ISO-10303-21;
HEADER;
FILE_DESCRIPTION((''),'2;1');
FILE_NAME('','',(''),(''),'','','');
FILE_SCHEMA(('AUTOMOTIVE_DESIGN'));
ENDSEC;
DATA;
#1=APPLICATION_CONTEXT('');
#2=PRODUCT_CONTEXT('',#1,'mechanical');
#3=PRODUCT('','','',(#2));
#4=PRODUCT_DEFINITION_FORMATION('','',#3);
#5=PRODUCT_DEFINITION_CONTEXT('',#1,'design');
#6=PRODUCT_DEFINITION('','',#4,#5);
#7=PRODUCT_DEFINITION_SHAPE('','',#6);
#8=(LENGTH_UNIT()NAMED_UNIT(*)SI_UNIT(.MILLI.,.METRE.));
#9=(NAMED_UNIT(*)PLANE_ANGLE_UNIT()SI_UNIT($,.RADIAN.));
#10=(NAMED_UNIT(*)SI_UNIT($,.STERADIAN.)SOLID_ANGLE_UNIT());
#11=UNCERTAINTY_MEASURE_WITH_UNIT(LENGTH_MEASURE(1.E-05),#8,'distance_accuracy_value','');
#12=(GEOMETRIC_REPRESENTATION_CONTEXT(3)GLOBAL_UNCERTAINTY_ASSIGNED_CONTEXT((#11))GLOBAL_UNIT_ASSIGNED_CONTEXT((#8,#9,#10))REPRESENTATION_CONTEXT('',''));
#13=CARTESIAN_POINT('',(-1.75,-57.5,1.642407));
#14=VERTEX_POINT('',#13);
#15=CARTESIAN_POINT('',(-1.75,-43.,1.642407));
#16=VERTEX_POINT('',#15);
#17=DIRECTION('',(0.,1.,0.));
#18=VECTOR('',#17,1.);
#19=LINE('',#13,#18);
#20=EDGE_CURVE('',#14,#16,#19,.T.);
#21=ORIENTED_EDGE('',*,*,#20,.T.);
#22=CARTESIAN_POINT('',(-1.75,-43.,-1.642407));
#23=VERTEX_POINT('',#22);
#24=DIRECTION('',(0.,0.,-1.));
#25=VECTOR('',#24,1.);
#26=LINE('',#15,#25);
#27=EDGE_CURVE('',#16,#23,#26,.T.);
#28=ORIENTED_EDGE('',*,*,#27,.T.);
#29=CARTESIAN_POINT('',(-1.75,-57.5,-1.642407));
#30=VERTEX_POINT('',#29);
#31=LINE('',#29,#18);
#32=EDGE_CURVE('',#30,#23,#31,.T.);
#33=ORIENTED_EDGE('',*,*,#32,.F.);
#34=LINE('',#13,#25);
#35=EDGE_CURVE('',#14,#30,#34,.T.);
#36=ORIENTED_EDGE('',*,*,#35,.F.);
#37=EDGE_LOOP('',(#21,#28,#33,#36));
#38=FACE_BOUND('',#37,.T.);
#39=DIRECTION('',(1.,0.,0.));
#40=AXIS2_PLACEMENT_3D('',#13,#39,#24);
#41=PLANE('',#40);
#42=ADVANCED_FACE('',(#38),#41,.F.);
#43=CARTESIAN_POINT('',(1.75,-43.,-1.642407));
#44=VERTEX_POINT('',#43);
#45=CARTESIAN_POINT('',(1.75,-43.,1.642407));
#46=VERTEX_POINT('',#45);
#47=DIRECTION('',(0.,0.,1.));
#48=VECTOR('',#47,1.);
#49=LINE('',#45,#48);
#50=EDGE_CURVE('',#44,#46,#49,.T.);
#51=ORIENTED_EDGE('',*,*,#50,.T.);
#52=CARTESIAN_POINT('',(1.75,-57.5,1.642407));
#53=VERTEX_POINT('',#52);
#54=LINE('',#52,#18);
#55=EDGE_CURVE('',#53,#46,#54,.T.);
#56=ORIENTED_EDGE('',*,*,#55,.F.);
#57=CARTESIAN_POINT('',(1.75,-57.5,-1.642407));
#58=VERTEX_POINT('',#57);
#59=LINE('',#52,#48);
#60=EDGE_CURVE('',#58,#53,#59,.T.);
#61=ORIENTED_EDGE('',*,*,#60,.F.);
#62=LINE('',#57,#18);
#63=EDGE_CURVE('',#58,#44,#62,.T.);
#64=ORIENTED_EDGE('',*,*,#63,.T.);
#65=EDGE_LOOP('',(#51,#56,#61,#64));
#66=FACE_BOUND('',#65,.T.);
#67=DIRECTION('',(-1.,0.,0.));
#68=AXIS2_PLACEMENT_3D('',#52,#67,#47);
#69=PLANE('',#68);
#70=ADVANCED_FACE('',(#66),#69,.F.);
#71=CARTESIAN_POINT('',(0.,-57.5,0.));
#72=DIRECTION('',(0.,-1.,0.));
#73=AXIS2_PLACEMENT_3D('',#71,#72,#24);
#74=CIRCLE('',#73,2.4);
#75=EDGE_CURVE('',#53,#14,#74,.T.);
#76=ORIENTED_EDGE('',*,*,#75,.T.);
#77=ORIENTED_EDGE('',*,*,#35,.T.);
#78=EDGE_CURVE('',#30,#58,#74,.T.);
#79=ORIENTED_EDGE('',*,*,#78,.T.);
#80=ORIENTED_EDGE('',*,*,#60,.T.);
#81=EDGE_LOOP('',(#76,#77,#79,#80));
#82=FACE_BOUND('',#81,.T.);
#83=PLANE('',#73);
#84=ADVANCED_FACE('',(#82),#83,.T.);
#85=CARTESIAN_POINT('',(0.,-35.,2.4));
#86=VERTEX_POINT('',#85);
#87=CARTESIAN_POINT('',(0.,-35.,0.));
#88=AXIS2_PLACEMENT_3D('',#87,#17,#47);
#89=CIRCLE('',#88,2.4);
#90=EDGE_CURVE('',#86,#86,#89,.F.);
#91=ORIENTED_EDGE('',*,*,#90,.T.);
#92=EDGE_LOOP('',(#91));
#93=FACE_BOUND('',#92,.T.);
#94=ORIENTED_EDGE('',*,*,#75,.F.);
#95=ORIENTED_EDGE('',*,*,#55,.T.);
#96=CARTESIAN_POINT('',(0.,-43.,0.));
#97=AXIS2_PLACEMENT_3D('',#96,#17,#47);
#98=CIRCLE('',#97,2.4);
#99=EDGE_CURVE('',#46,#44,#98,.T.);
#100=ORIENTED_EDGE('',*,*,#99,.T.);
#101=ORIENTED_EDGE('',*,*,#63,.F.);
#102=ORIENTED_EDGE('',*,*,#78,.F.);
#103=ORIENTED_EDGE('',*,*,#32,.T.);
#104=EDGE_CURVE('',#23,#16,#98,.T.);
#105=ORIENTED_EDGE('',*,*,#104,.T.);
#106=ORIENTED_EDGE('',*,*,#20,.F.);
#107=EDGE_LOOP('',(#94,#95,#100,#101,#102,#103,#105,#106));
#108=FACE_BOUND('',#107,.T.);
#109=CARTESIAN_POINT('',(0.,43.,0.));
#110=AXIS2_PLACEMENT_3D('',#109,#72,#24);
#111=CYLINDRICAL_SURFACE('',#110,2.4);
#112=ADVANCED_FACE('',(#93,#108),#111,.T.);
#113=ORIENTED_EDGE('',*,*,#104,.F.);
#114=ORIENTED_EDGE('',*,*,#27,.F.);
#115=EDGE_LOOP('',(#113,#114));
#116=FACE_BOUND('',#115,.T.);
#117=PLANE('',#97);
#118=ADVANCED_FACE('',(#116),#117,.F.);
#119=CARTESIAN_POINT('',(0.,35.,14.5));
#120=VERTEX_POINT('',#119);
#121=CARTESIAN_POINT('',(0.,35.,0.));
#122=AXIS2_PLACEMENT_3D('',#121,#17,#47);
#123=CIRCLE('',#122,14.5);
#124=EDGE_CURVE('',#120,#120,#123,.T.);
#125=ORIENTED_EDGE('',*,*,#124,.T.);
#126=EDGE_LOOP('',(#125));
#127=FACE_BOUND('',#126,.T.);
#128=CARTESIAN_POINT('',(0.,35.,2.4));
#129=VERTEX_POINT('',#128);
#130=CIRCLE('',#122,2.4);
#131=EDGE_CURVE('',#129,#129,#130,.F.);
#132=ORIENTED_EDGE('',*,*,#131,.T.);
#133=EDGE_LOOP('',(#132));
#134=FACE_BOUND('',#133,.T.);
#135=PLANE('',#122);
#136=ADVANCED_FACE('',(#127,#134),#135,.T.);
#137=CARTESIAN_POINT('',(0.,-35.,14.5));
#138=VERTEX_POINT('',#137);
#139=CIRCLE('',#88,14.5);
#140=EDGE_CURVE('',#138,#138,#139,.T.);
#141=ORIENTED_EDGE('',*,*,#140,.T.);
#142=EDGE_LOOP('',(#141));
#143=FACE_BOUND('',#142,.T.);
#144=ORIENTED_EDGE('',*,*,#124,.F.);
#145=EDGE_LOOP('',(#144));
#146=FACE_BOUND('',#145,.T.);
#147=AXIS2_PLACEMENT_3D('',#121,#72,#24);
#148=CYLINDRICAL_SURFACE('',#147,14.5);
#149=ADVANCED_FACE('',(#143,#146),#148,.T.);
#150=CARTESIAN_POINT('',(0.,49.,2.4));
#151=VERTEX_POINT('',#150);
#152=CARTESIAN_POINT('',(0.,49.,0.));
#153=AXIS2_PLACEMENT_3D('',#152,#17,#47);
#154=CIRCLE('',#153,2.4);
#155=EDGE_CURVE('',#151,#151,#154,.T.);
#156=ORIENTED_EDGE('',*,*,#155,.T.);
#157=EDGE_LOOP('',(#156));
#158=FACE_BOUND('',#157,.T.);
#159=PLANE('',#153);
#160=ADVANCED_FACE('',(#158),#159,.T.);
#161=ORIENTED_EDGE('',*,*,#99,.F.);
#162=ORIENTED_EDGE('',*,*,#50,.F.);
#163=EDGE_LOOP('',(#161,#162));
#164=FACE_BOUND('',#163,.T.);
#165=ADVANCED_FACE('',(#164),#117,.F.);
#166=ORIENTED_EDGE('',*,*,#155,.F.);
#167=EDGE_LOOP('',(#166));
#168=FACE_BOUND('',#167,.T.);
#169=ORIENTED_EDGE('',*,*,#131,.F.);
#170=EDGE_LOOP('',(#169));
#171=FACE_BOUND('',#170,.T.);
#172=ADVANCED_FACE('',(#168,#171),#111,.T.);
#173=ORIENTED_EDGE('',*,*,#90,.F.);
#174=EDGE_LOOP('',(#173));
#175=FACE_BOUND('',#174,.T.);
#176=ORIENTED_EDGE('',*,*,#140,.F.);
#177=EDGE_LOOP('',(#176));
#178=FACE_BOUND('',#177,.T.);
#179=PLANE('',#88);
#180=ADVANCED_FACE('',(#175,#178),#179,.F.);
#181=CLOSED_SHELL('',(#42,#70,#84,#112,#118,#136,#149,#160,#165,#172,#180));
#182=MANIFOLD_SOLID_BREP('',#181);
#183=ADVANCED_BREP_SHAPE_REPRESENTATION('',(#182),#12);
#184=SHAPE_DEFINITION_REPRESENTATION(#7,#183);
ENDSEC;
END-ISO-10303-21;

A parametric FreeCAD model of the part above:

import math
import FreeCAD as App
import Part
import Sketcher
Q = App.Units.Quantity

doc = App.newDocument("Part")
body = doc.addObject("PartDesign::Body", "Body")

sketch1 = body.newObject("Sketcher::SketchObject", "Sketch")
sketch1.AttachmentSupport = (doc.getObject("XZ_Plane"), [""])
sketch1.MapMode = "FlatFace"
sketch1.addGeometry(Part.Circle(App.Vector(0, 0, 0), App.Vector(0, 0, 1), 14.5), False)
sketch1.addConstraint([
    Sketcher.Constraint("Coincident", 0, 3, -1, 1),
    Sketcher.Constraint("Diameter", 0, Q("29 mm")),
])
pad1 = body.newObject("PartDesign::Pad", "Pad")
pad1.Profile = sketch1
pad1.Length = 70
pad1.Midplane = True

sketch2 = body.newObject("Sketcher::SketchObject", "Sketch001")
sketch2.AttachmentSupport = (doc.getObject("XZ_Plane"), [""])
sketch2.MapMode = "FlatFace"
sketch2.addGeometry(Part.Circle(App.Vector(0, 0, 0), App.Vector(0, 0, 1), 2.4), False)
sketch2.addConstraint([
    Sketcher.Constraint("Coincident", 0, 3, -1, 1),
    Sketcher.Constraint("Diameter", 0, Q("4.8 mm")),
])
pad2 = body.newObject("PartDesign::Pad", "Pad001")
pad2.Profile = sketch2
pad2.Length = 86
pad2.Midplane = True

sketch3 = body.newObject("Sketcher::SketchObject", "Sketch002")
sketch3.AttachmentSupport = (doc.getObject("XZ_Plane"), [""])
sketch3.MapMode = "FlatFace"
sketch3.AttachmentOffset = App.Placement(App.Vector(0, 0, 43), App.Rotation())
sketch3.addGeometry([
    Part.LineSegment(App.Vector(-1.75, 1.642407, 0), App.Vector(-1.75, -1.642407, 0)),
    Part.ArcOfCircle(Part.Circle(App.Vector(0, 0, 0), App.Vector(0, 0, 1), 2.4), math.radians(-136.816578), math.radians(-43.183422)),
    Part.LineSegment(App.Vector(1.75, -1.642407, 0), App.Vector(1.75, 1.642407, 0)),
    Part.ArcOfCircle(Part.Circle(App.Vector(0, 0, 0), App.Vector(0, 0, 1), 2.4), math.radians(43.183422), math.radians(136.816578)),
], False)
sketch3.addConstraint([
    Sketcher.Constraint("Coincident", 0, 2, 1, 1),
    Sketcher.Constraint("Coincident", 1, 2, 2, 1),
    Sketcher.Constraint("Coincident", 2, 2, 3, 1),
    Sketcher.Constraint("Coincident", 3, 2, 0, 1),
    Sketcher.Constraint("Vertical", 0),
    Sketcher.Constraint("Vertical", 2),
    Sketcher.Constraint("Coincident", 1, 3, -1, 1),
    Sketcher.Constraint("Coincident", 3, 3, -1, 1),
    Sketcher.Constraint("Equal", 1, 3),
    Sketcher.Constraint("Horizontal", 0, 2, 1, 2),
    Sketcher.Constraint("Radius", 1, Q("2.4 mm")),
    Sketcher.Constraint("DistanceX", 0, 2, 1, 2, Q("3.5 mm")),
])
pad3 = body.newObject("PartDesign::Pad", "Pad002")
pad3.Profile = sketch3
pad3.Length = 14.5

sketch4 = body.newObject("Sketcher::SketchObject", "Sketch003")
sketch4.AttachmentSupport = (doc.getObject("XZ_Plane"), [""])
sketch4.MapMode = "FlatFace"
sketch4.AttachmentOffset = App.Placement(App.Vector(0, 0, -49), App.Rotation())
sketch4.addGeometry(Part.Circle(App.Vector(0, 0, 0), App.Vector(0, 0, 1), 2.4), False)
sketch4.addConstraint([
    Sketcher.Constraint("Coincident", 0, 3, -1, 1),
    Sketcher.Constraint("Diameter", 0, Q("4.8 mm")),
])
pad4 = body.newObject("PartDesign::Pad", "Pad003")
pad4.Profile = sketch4
pad4.Length = 6

doc.recompute()
